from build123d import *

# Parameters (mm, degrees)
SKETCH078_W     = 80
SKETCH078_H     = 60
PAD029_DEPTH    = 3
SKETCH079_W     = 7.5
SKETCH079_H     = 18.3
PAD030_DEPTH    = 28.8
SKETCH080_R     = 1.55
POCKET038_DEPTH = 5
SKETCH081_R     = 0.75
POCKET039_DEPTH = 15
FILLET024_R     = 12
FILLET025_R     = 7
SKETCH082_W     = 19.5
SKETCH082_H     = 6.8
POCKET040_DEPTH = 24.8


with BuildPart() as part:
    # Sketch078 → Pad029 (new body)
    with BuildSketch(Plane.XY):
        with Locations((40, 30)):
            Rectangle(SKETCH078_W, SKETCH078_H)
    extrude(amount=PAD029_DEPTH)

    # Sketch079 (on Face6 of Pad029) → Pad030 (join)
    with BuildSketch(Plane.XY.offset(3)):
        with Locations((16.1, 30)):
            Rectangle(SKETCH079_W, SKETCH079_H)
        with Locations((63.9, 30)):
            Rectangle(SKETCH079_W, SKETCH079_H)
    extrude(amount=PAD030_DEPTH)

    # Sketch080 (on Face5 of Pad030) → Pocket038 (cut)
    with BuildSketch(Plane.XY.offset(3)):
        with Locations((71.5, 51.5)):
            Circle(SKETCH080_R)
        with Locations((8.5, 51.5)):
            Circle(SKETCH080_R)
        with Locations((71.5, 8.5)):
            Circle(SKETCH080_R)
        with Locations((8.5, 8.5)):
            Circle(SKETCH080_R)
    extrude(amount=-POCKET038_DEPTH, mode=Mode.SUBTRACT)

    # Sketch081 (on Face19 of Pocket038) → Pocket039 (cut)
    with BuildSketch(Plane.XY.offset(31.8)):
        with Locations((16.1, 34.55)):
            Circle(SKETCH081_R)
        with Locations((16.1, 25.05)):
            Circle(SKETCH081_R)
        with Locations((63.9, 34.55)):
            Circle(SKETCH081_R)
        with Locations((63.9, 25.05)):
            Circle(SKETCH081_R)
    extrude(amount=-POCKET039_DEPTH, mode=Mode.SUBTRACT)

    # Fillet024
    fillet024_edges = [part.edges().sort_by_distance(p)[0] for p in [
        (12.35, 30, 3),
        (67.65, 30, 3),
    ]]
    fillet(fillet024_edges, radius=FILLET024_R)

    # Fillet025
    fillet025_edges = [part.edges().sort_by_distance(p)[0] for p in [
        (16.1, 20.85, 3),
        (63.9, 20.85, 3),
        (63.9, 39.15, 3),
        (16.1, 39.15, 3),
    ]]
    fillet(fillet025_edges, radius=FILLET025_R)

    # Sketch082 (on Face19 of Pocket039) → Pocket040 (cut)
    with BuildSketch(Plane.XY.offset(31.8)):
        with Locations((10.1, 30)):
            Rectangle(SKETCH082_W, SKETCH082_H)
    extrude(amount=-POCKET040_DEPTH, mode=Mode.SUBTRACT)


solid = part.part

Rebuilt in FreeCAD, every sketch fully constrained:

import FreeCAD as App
import Part
import Sketcher
from FreeCAD import Vector


def edges_at(feature, points):
    """Names of the edges that pass closest to the given points."""
    edges = feature.Shape.Edges
    near = lambda p: min(range(len(edges)), key=lambda i: edges[i].distToShape(Part.Vertex(*p))[0])
    return sorted({f"Edge{near(p) + 1}" for p in points})


def add_polygon(sketch, points):
    """Adds a closed chain of lines whose ends are joined by coincident constraints."""
    first, n = sketch.GeometryCount, len(points)
    for a, b in zip(points, points[1:] + points[:1]):
        sketch.addGeometry(Part.LineSegment(App.Vector(*a, 0), App.Vector(*b, 0)), False)
    for i in range(n):
        sketch.addConstraint(Sketcher.Constraint("Coincident", first + i, 2, first + (i + 1) % n, 1))

doc = App.newDocument("Part")
params = doc.addObject("Spreadsheet::Sheet", "Params")
for row, (alias, value) in enumerate([
    ("sketch1_width", "80 mm"),
    ("sketch1_height", "60 mm"),
    ("pad1_length", "3 mm"),
    ("sketch2_width", "7.5 mm"),
    ("sketch2_height", "18.3 mm"),
    ("pad2_length", "28.8 mm"),
    ("sketch3_diameter", "3.1 mm"),
    ("pocket1_length", "5 mm"),
    ("sketch4_diameter", "1.5 mm"),
    ("pocket2_length", "15 mm"),
    ("fillet_radius", "12 mm"),
    ("fillet2_radius", "7 mm"),
    ("sketch5_width", "19.5 mm"),
    ("sketch5_height", "6.8 mm"),
    ("pocket3_length", "24.8 mm"),
], start=1):
    params.set(f"A{row}", alias)
    params.set(f"B{row}", "=" + value)
    params.setAlias(f"B{row}", alias)

body = doc.addObject("PartDesign::Body", "Body")

sketch1 = body.newObject("Sketcher::SketchObject", "Sketch")
sketch1.AttachmentSupport = (doc.getObject("XY_Plane"), [""])
sketch1.MapMode = "FlatFace"
add_polygon(sketch1, [(0, 60), (0, 0), (80, 0), (80, 60)])
sketch1.addConstraint(Sketcher.Constraint("Vertical", 0))
sketch1.addConstraint(Sketcher.Constraint("Horizontal", 1))
sketch1.addConstraint(Sketcher.Constraint("Vertical", 2))
sketch1.addConstraint(Sketcher.Constraint("Horizontal", 3))
sketch1.addConstraint(Sketcher.Constraint("Coincident", 0, 2, -1, 1))
sketch1.addConstraint(Sketcher.Constraint("DistanceX", 1, 1, 1, 2, 80.0))
sketch1.addConstraint(Sketcher.Constraint("DistanceY", 0, 2, 0, 1, 60.0))
sketch1.setExpression("Constraints[9]", "Params.sketch1_width")
sketch1.setExpression("Constraints[10]", "Params.sketch1_height")
pad1 = body.newObject("PartDesign::Pad", "Pad")
pad1.Profile = sketch1
pad1.setExpression("Length", "Params.pad1_length")

sketch2 = body.newObject("Sketcher::SketchObject", "Sketch001")
sketch2.AttachmentSupport = (doc.getObject("XY_Plane"), [""])
sketch2.MapMode = "FlatFace"
sketch2.AttachmentOffset = App.Placement(Vector(0, 0, 3), App.Rotation())
add_polygon(sketch2, [(12, 39), (12, 21), (20, 21), (20, 39)])
add_polygon(sketch2, [(60, 39), (60, 21), (68, 21), (68, 39)])
sketch2.addConstraint(Sketcher.Constraint("Vertical", 0))
sketch2.addConstraint(Sketcher.Constraint("Horizontal", 1))
sketch2.addConstraint(Sketcher.Constraint("Vertical", 2))
sketch2.addConstraint(Sketcher.Constraint("Horizontal", 3))
sketch2.addConstraint(Sketcher.Constraint("Vertical", 4))
sketch2.addConstraint(Sketcher.Constraint("Horizontal", 5))
sketch2.addConstraint(Sketcher.Constraint("Vertical", 6))
sketch2.addConstraint(Sketcher.Constraint("Horizontal", 7))
sketch2.addConstraint(Sketcher.Constraint("Horizontal", 1, 2, 4, 2))
sketch2.addConstraint(Sketcher.Constraint("Horizontal", 3, 2, 6, 2))
sketch2.addConstraint(Sketcher.Constraint("Equal", 3, 5))
sketch2.addConstraint(Sketcher.Constraint("DistanceX", 1, 1, 1, 2, 7.5))
sketch2.addConstraint(Sketcher.Constraint("DistanceY", 0, 2, 0, 1, 18.3))
sketch2.addConstraint(Sketcher.Constraint("DistanceX", 1, 2, 4, 2, 40.3))
sketch2.addConstraint(Sketcher.Constraint("DistanceX", -1, 1, 0, 2, 12.35))
sketch2.addConstraint(Sketcher.Constraint("DistanceY", -1, 1, 0, 2, 20.85))
sketch2.setExpression("Constraints[19]", "Params.sketch2_width")
sketch2.setExpression("Constraints[20]", "Params.sketch2_height")
pad2 = body.newObject("PartDesign::Pad", "Pad001")
pad2.Profile = sketch2
pad2.setExpression("Length", "Params.pad2_length")

sketch3 = body.newObject("Sketcher::SketchObject", "Sketch002")
sketch3.AttachmentSupport = (doc.getObject("XY_Plane"), [""])
sketch3.MapMode = "FlatFace"
sketch3.AttachmentOffset = App.Placement(Vector(0, 0, 3), App.Rotation())
sketch3.addGeometry(Part.Circle(Vector(71.5, 51.5, 0), Vector(0, 0, 1), 1.6), False)
sketch3.addGeometry(Part.Circle(Vector(8.5, 51.5, 0), Vector(0, 0, 1), 1.6), False)
sketch3.addGeometry(Part.Circle(Vector(71.5, 8.5, 0), Vector(0, 0, 1), 1.6), False)
sketch3.addGeometry(Part.Circle(Vector(8.5, 8.5, 0), Vector(0, 0, 1), 1.6), False)
sketch3.addConstraint(Sketcher.Constraint("Equal", 0, 1))
sketch3.addConstraint(Sketcher.Constraint("Equal", 1, 2))
sketch3.addConstraint(Sketcher.Constraint("Equal", 2, 3))
sketch3.addConstraint(Sketcher.Constraint("Horizontal", 0, 3, 1, 3))
sketch3.addConstraint(Sketcher.Constraint("Horizontal", 2, 3, 3, 3))
sketch3.addConstraint(Sketcher.Constraint("Vertical", 0, 3, 2, 3))
sketch3.addConstraint(Sketcher.Constraint("Vertical", 1, 3, 3, 3))
sketch3.addConstraint(Sketcher.Constraint("Diameter", 0, 3.1))
sketch3.addConstraint(Sketcher.Constraint("DistanceX", 1, 3, 0, 3, 63.0))
sketch3.addConstraint(Sketcher.Constraint("DistanceY", 2, 3, 0, 3, 43.0))
sketch3.addConstraint(Sketcher.Constraint("DistanceX", -1, 1, 0, 3, 71.5))
sketch3.addConstraint(Sketcher.Constraint("DistanceY", -1, 1, 0, 3, 51.5))
sketch3.setExpression("Constraints[7]", "Params.sketch3_diameter")
pocket1 = body.newObject("PartDesign::Pocket", "Pocket")
pocket1.Profile = sketch3
pocket1.setExpression("Length", "Params.pocket1_length")

sketch4 = body.newObject("Sketcher::SketchObject", "Sketch003")
sketch4.AttachmentSupport = (doc.getObject("XY_Plane"), [""])
sketch4.MapMode = "FlatFace"
sketch4.AttachmentOffset = App.Placement(Vector(0, 0, 31.8), App.Rotation())
sketch4.addGeometry(Part.Circle(Vector(16.1, 34.5, 0), Vector(0, 0, 1), 0.8), False)
sketch4.addGeometry(Part.Circle(Vector(16.1, 25.1, 0), Vector(0, 0, 1), 0.8), False)
sketch4.addGeometry(Part.Circle(Vector(63.9, 34.5, 0), Vector(0, 0, 1), 0.8), False)
sketch4.addGeometry(Part.Circle(Vector(63.9, 25.1, 0), Vector(0, 0, 1), 0.8), False)
sketch4.addConstraint(Sketcher.Constraint("Equal", 0, 1))
sketch4.addConstraint(Sketcher.Constraint("Equal", 1, 2))
sketch4.addConstraint(Sketcher.Constraint("Equal", 2, 3))
sketch4.addConstraint(Sketcher.Constraint("Horizontal", 0, 3, 2, 3))
sketch4.addConstraint(Sketcher.Constraint("Horizontal", 1, 3, 3, 3))
sketch4.addConstraint(Sketcher.Constraint("Vertical", 0, 3, 1, 3))
sketch4.addConstraint(Sketcher.Constraint("Vertical", 2, 3, 3, 3))
sketch4.addConstraint(Sketcher.Constraint("Diameter", 0, 1.5))
sketch4.addConstraint(Sketcher.Constraint("DistanceX", -1, 1, 0, 3, 16.1))
sketch4.addConstraint(Sketcher.Constraint("DistanceX", -1, 1, 2, 3, 63.9))
sketch4.addConstraint(Sketcher.Constraint("DistanceY", 1, 3, 0, 3, 9.5))
sketch4.addConstraint(Sketcher.Constraint("DistanceY", -1, 1, 0, 3, 34.55))
sketch4.setExpression("Constraints[7]", "Params.sketch4_diameter")
pocket2 = body.newObject("PartDesign::Pocket", "Pocket001")
pocket2.Profile = sketch4
pocket2.setExpression("Length", "Params.pocket2_length")
doc.recompute()

fillet = body.newObject("PartDesign::Fillet", "Fillet")
fillet.Base = (pocket2, edges_at(pocket2, [(12.35, 30, 3), (67.65, 30, 3)]))
fillet.setExpression("Radius", "Params.fillet_radius")
doc.recompute()

fillet2 = body.newObject("PartDesign::Fillet", "Fillet001")
fillet2.Base = (fillet, edges_at(fillet, [
    (10.1, 20.85, 3),
    (69.9, 20.85, 3),
    (69.9, 39.15, 3),
    (10.1, 39.15, 3),
]))
fillet2.setExpression("Radius", "Params.fillet2_radius")

sketch5 = body.newObject("Sketcher::SketchObject", "Sketch004")
sketch5.AttachmentSupport = (doc.getObject("XY_Plane"), [""])
sketch5.MapMode = "FlatFace"
sketch5.AttachmentOffset = App.Placement(Vector(0, 0, 31.8), App.Rotation())
add_polygon(sketch5, [(0, 33), (0, 27), (20, 27), (20, 33)])
sketch5.addConstraint(Sketcher.Constraint("Vertical", 0))
sketch5.addConstraint(Sketcher.Constraint("Horizontal", 1))
sketch5.addConstraint(Sketcher.Constraint("Vertical", 2))
sketch5.addConstraint(Sketcher.Constraint("Horizontal", 3))
sketch5.addConstraint(Sketcher.Constraint("DistanceX", 1, 1, 1, 2, 19.5))
sketch5.addConstraint(Sketcher.Constraint("DistanceY", 0, 2, 0, 1, 6.8))
sketch5.addConstraint(Sketcher.Constraint("DistanceY", -1, 1, 0, 2, 26.6))
sketch5.addConstraint(Sketcher.Constraint("DistanceX", -1, 1, 0, 2, 0.35))
sketch5.setExpression("Constraints[8]", "Params.sketch5_width")
sketch5.setExpression("Constraints[9]", "Params.sketch5_height")
pocket3 = body.newObject("PartDesign::Pocket", "Pocket002")
pocket3.Profile = sketch5
pocket3.setExpression("Length", "Params.pocket3_length")

doc.recompute()
